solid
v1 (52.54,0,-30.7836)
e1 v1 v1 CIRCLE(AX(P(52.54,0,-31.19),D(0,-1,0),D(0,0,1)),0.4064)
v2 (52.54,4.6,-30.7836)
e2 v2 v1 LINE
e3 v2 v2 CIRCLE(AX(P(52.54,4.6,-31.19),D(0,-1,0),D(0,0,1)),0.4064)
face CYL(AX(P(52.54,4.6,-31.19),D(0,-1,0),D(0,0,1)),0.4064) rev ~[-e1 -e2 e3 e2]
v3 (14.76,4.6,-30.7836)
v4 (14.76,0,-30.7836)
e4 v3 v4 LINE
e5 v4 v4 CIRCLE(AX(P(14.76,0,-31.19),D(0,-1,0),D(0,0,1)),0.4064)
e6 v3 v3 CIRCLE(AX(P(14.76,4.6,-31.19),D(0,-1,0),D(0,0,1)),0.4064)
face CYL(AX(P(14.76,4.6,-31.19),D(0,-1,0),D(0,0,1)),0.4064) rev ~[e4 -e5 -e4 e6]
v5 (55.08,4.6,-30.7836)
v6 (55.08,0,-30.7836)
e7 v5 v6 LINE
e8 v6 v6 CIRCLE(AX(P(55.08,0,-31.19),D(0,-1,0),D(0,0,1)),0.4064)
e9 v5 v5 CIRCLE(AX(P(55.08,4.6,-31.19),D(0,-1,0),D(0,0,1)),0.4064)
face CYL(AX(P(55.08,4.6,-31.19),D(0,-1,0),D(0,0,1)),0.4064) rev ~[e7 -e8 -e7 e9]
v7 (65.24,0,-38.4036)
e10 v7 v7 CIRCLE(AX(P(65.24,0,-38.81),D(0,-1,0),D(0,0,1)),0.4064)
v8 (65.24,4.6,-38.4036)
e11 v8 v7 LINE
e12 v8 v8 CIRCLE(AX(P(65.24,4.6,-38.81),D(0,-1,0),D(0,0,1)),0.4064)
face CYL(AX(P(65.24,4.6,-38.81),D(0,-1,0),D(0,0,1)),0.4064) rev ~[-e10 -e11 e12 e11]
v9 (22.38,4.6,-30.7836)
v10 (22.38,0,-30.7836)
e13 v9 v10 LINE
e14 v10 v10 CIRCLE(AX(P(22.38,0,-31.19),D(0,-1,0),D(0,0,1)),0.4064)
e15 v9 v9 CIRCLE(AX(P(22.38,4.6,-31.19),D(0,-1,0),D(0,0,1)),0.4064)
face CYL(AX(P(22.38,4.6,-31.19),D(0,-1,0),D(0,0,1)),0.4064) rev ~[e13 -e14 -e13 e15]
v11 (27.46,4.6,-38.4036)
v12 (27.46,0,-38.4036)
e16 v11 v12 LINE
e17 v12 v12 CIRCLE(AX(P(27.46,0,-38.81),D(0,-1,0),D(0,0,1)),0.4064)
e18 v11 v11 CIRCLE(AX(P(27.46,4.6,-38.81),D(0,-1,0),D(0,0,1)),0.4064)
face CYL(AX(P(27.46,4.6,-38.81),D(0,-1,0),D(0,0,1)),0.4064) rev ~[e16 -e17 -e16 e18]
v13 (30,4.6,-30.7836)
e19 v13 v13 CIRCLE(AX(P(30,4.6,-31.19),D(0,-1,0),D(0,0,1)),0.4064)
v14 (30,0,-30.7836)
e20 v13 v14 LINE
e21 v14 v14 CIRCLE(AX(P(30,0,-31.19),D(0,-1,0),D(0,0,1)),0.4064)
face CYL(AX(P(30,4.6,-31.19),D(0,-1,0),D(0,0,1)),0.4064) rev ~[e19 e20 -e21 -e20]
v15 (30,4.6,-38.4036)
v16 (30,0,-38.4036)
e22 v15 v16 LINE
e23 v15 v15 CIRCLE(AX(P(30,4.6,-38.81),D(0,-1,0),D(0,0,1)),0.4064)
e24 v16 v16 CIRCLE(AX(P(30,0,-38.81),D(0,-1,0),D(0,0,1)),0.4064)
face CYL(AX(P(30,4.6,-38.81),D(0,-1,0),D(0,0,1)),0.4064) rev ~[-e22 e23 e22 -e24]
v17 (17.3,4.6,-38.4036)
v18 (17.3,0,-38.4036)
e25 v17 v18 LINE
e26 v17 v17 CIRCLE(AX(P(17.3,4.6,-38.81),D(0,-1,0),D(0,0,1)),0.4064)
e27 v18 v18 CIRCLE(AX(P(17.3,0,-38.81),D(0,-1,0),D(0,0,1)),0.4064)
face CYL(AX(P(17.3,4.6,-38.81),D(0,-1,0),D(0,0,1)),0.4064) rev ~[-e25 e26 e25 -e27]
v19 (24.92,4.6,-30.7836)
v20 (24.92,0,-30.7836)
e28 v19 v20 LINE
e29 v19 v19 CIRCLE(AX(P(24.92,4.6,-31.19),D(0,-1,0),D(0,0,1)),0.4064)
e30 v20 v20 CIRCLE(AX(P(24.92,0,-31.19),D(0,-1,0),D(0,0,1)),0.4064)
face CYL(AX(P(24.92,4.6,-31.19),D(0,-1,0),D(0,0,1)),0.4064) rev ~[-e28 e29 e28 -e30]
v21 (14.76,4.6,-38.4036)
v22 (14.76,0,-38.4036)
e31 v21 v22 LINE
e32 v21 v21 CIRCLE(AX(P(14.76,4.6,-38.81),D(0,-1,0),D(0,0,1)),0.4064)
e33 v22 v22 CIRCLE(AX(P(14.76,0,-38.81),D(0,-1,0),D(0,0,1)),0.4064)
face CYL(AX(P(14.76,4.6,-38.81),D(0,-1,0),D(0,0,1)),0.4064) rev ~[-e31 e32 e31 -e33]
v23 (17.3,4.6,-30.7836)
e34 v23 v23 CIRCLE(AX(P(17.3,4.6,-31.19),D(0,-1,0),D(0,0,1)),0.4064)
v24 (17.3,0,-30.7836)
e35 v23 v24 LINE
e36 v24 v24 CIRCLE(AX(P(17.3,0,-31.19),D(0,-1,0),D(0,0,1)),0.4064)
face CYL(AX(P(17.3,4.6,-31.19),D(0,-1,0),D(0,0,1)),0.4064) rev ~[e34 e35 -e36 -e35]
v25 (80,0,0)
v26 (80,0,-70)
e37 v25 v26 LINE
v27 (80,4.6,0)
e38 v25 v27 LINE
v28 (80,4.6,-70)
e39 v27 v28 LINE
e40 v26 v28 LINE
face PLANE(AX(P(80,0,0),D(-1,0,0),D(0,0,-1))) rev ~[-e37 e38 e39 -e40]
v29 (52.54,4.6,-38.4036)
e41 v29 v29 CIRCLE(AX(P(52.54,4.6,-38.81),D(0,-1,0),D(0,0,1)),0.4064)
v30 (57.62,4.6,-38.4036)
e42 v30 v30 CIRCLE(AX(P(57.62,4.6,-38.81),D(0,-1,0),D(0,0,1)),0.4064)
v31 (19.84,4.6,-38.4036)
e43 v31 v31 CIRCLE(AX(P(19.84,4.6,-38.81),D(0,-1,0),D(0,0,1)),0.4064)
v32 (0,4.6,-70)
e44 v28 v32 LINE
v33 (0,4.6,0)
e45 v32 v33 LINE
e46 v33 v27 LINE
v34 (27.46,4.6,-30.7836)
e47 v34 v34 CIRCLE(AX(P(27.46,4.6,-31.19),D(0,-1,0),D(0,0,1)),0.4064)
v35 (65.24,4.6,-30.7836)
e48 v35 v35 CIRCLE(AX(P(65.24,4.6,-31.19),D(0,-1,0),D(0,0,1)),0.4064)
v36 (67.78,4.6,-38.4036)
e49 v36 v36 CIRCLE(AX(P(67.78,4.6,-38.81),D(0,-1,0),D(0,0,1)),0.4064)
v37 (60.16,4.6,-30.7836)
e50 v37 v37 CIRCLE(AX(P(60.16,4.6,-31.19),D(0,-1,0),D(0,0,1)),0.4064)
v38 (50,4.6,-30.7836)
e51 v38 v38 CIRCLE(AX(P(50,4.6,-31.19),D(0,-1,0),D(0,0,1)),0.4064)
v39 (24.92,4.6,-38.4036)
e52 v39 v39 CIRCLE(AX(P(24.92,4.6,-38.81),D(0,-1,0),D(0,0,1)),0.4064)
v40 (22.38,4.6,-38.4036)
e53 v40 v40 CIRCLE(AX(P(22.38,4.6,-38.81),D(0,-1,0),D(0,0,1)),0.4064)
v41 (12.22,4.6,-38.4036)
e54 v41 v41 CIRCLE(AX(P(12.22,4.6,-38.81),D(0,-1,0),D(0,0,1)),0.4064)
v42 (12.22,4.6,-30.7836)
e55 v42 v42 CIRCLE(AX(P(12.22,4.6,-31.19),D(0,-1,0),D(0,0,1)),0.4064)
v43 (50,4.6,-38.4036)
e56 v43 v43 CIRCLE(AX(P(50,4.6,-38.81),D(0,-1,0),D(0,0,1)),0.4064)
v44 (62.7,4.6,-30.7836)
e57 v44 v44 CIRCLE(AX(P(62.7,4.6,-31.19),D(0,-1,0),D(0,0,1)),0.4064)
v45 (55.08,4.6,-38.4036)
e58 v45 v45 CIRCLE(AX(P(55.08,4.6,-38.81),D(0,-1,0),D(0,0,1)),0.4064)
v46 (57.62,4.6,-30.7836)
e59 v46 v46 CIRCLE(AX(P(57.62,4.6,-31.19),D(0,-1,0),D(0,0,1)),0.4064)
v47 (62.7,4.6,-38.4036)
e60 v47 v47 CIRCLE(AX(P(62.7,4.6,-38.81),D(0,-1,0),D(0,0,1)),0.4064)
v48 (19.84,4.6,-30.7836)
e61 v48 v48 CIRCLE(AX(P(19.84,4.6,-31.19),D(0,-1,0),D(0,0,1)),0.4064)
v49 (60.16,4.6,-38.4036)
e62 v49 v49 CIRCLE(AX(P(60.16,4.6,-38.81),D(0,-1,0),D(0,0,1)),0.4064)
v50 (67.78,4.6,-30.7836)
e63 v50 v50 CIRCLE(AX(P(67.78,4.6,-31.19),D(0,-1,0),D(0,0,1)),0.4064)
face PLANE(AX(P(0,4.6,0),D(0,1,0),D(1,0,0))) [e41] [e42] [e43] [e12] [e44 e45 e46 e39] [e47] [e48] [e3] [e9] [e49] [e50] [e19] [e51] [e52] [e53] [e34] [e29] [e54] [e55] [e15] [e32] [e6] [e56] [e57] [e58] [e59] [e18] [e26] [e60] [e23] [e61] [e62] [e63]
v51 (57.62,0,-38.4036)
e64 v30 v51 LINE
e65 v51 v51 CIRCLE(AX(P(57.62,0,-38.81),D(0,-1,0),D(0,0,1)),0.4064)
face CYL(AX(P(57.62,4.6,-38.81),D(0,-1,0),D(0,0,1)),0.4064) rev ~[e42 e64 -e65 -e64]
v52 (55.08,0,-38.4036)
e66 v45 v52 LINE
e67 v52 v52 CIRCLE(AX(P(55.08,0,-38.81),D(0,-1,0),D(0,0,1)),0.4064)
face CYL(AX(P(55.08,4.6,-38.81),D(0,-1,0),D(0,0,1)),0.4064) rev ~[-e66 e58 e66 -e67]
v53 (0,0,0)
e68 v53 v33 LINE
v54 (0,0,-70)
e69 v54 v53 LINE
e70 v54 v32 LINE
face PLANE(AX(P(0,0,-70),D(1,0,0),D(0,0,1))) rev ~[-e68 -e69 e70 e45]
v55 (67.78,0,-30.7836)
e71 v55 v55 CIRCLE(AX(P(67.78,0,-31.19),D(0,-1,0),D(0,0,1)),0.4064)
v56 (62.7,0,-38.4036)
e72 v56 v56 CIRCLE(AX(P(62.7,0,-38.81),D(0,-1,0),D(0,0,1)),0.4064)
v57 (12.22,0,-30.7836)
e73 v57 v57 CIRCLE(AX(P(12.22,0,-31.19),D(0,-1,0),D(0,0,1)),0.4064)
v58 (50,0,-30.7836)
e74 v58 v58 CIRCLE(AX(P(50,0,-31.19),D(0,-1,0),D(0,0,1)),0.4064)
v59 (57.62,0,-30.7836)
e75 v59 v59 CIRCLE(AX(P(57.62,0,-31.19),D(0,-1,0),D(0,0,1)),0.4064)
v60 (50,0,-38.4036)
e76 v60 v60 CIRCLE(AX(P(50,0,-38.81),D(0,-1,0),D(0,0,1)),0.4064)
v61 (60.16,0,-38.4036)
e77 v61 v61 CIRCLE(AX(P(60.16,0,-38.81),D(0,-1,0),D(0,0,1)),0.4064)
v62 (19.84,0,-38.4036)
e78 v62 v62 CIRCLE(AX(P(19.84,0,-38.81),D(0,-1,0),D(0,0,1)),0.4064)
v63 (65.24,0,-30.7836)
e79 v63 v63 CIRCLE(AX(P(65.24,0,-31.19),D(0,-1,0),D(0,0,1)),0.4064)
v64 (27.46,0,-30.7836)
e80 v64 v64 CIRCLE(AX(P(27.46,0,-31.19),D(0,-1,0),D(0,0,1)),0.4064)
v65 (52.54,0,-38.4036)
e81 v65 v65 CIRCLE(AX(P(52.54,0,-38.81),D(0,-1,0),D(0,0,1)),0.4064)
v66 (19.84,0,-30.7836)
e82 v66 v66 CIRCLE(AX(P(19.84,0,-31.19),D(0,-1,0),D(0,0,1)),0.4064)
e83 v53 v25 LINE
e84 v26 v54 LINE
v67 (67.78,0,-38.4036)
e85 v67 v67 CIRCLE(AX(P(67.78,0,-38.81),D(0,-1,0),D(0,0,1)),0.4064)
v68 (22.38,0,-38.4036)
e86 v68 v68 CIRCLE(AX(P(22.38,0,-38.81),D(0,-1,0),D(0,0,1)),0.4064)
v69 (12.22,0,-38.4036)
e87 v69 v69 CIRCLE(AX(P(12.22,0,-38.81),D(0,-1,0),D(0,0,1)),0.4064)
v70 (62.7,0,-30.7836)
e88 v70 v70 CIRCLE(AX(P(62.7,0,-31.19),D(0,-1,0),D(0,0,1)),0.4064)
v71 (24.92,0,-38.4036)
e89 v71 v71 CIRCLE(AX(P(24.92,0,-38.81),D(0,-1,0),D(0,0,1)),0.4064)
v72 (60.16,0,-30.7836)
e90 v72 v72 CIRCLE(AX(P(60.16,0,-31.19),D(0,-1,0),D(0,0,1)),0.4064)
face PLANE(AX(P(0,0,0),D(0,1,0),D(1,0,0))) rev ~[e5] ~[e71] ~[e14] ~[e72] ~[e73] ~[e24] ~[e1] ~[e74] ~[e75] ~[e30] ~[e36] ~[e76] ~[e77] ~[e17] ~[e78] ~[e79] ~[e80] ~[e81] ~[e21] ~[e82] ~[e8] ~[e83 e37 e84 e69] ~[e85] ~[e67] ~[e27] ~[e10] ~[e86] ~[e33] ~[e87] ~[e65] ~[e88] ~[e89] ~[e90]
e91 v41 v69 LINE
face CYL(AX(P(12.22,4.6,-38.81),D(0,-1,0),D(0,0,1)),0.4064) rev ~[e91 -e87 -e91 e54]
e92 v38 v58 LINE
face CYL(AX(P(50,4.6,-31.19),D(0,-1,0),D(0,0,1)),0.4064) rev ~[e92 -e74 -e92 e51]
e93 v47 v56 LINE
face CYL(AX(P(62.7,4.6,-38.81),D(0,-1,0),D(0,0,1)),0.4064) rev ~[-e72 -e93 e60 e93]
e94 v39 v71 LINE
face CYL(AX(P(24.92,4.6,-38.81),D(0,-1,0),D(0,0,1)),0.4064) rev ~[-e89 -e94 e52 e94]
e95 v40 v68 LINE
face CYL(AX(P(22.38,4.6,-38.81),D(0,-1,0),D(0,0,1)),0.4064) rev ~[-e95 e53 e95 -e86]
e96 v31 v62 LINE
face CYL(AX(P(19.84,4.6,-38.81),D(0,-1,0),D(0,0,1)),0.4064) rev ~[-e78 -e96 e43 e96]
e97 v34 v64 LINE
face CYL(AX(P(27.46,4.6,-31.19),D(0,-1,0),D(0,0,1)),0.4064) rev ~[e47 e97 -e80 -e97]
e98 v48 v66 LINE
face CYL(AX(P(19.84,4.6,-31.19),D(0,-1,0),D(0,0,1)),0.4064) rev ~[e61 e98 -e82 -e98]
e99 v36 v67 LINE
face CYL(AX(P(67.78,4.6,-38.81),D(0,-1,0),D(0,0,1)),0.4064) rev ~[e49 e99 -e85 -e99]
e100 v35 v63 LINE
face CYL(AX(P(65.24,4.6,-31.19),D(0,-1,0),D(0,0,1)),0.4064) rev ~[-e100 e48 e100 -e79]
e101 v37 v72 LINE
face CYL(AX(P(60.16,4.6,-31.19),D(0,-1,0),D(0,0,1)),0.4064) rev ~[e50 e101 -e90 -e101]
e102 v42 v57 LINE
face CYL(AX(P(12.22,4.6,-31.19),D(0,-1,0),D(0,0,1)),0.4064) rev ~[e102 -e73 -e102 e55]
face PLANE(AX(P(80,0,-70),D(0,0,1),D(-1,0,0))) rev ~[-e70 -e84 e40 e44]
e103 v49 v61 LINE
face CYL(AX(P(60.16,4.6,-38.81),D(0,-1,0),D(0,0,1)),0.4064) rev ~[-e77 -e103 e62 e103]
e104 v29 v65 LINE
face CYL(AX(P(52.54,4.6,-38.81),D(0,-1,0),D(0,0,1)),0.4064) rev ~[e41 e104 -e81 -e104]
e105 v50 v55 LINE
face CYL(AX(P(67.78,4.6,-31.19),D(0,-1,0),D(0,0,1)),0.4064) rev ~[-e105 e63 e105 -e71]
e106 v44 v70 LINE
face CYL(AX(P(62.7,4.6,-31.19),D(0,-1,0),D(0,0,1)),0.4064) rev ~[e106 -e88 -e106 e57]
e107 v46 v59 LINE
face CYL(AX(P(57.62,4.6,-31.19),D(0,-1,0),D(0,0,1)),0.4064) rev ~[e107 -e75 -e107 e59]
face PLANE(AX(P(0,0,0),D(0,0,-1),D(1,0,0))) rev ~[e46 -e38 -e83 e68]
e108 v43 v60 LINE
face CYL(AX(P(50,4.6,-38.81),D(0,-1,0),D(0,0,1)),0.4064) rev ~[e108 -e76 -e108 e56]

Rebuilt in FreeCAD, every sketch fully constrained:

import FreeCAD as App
import Part
import Sketcher

V = App.Vector
Q = App.Units.Quantity


def add_polygon(sketch, points):
    """Adds a closed chain of lines whose ends are joined by coincident constraints."""
    first, n = sketch.GeometryCount, len(points)
    for a, b in zip(points, points[1:] + points[:1]):
        sketch.addGeometry(Part.LineSegment(App.Vector(*a, 0), App.Vector(*b, 0)), False)
    for i in range(n):
        sketch.addConstraint(Sketcher.Constraint("Coincident", first + i, 2, first + (i + 1) % n, 1))

doc = App.newDocument("Part")
params = doc.addObject("Spreadsheet::Sheet", "Params")
for row, (alias, value) in enumerate([
    ("pad1_length", "0.1811024 in"),
    ("sketch2_diameter", "0.032 in"),
    ("hole_diameter", "0.032 in"),
], start=1):
    params.set(f"A{row}", alias)
    params.set(f"B{row}", "=" + value)
    params.setAlias(f"B{row}", alias)

body = doc.addObject("PartDesign::Body", "Body")

# Sketch on XZ plane
sketch1 = body.newObject("Sketcher::SketchObject", "Sketch")
sketch1.AttachmentSupport = (doc.getObject("XZ_Plane"), [""])
sketch1.MapMode = "FlatFace"
add_polygon(sketch1, [(0, -70), (0, 0), (80, 0), (80, -70)])  # lines 0-3
sketch1.addConstraint([
    Sketcher.Constraint("Vertical", 0),
    Sketcher.Constraint("Horizontal", 1),
    Sketcher.Constraint("Vertical", 2),
    Sketcher.Constraint("Horizontal", 3),
    Sketcher.Constraint("Coincident", 0, 2, -1, 1),
    Sketcher.Constraint("DistanceX", 1, 1, 1, 2, Q("3.1496 in")),
    Sketcher.Constraint("DistanceY", 0, 1, 0, 2, Q("2.7559 in")),
])
pad1 = body.newObject("PartDesign::Pad", "Pad")
pad1.Profile = sketch1
pad1.setExpression("Length", "Params.pad1_length")
pad1.Reversed = True

# Sketch on XZ plane
sketch2 = body.newObject("Sketcher::SketchObject", "Sketch001")
sketch2.AttachmentSupport = (doc.getObject("XZ_Plane"), [""])
sketch2.MapMode = "FlatFace"
sketch2.AttachmentOffset = App.Placement(V(0, 0, -0.1811024 * 25.4), App.Rotation())
sketch2.addGeometry([
    Part.Circle(V(17.3, -38.81, 0), V(0, 0, 1), 0.41),  # 0
    Part.Circle(V(17.3, -31.19, 0), V(0, 0, 1), 0.41),  # 1
    Part.Circle(V(55.08, -38.81, 0), V(0, 0, 1), 0.41),  # 2
    Part.Circle(V(14.76, -38.81, 0), V(0, 0, 1), 0.41),  # 3
    Part.Circle(V(60.16, -31.19, 0), V(0, 0, 1), 0.41),  # 4
    Part.Circle(V(50, -38.81, 0), V(0, 0, 1), 0.41),  # 5
    Part.Circle(V(57.62, -31.19, 0), V(0, 0, 1), 0.41),  # 6
    Part.Circle(V(22.38, -31.19, 0), V(0, 0, 1), 0.41),  # 7
    Part.Circle(V(67.78, -31.19, 0), V(0, 0, 1), 0.41),  # 8
    Part.Circle(V(52.54, -31.19, 0), V(0, 0, 1), 0.41),  # 9
    Part.Circle(V(65.24, -31.19, 0), V(0, 0, 1), 0.41),  # 10
    Part.Circle(V(27.46, -38.81, 0), V(0, 0, 1), 0.41),  # 11
    Part.Circle(V(57.62, -38.81, 0), V(0, 0, 1), 0.41),  # 12
    Part.Circle(V(30, -31.19, 0), V(0, 0, 1), 0.41),  # 13
    Part.Circle(V(24.92, -38.81, 0), V(0, 0, 1), 0.41),  # 14
    Part.Circle(V(14.76, -31.19, 0), V(0, 0, 1), 0.41),  # 15
    Part.Circle(V(19.84, -38.81, 0), V(0, 0, 1), 0.41),  # 16
    Part.Circle(V(12.22, -31.19, 0), V(0, 0, 1), 0.41),  # 17
    Part.Circle(V(50, -31.19, 0), V(0, 0, 1), 0.41),  # 18
    Part.Circle(V(30, -31.19, 0), V(0, 0, 1), 0.41),  # 19
    Part.Circle(V(60.16, -38.81, 0), V(0, 0, 1), 0.41),  # 20
    Part.Circle(V(62.7, -38.81, 0), V(0, 0, 1), 0.41),  # 21
    Part.Circle(V(30, -38.81, 0), V(0, 0, 1), 0.41),  # 22
    Part.Circle(V(67.78, -38.81, 0), V(0, 0, 1), 0.41),  # 23
    Part.Circle(V(27.46, -31.19, 0), V(0, 0, 1), 0.41),  # 24
    Part.Circle(V(22.38, -38.81, 0), V(0, 0, 1), 0.41),  # 25
    Part.Circle(V(62.7, -31.19, 0), V(0, 0, 1), 0.41),  # 26
    Part.Circle(V(50, -38.81, 0), V(0, 0, 1), 0.41),  # 27
    Part.Circle(V(55.08, -31.19, 0), V(0, 0, 1), 0.41),  # 28
    Part.Circle(V(65.24, -38.81, 0), V(0, 0, 1), 0.41),  # 29
    Part.Circle(V(52.54, -38.81, 0), V(0, 0, 1), 0.41),  # 30
    Part.Circle(V(50, -31.19, 0), V(0, 0, 1), 0.41),  # 31
    Part.Circle(V(19.84, -31.19, 0), V(0, 0, 1), 0.41),  # 32
    Part.Circle(V(24.92, -31.19, 0), V(0, 0, 1), 0.41),  # 33
    Part.Circle(V(30, -38.81, 0), V(0, 0, 1), 0.41),  # 34
    Part.Circle(V(12.22, -38.81, 0), V(0, 0, 1), 0.41),  # 35
], False)
sketch2.addConstraint([
    Sketcher.Constraint("Coincident", 19, 3, 13, 3),
    Sketcher.Constraint("Coincident", 27, 3, 5, 3),
    Sketcher.Constraint("Coincident", 31, 3, 18, 3),
    Sketcher.Constraint("Coincident", 34, 3, 22, 3),
    Sketcher.Constraint("Equal", 0, 1),
    Sketcher.Constraint("Equal", 1, 2),
    Sketcher.Constraint("Equal", 2, 3),
    Sketcher.Constraint("Equal", 3, 4),
    Sketcher.Constraint("Equal", 4, 5),
    Sketcher.Constraint("Equal", 5, 6),
    Sketcher.Constraint("Equal", 6, 7),
    Sketcher.Constraint("Equal", 7, 8),
    Sketcher.Constraint("Equal", 8, 9),
    Sketcher.Constraint("Equal", 9, 10),
    Sketcher.Constraint("Equal", 10, 11),
    Sketcher.Constraint("Equal", 11, 12),
    Sketcher.Constraint("Equal", 12, 13),
    Sketcher.Constraint("Equal", 13, 14),
    Sketcher.Constraint("Equal", 14, 15),
    Sketcher.Constraint("Equal", 15, 16),
    Sketcher.Constraint("Equal", 16, 17),
    Sketcher.Constraint("Equal", 17, 18),
    Sketcher.Constraint("Equal", 18, 19),
    Sketcher.Constraint("Equal", 19, 20),
    Sketcher.Constraint("Equal", 20, 21),
    Sketcher.Constraint("Equal", 21, 22),
    Sketcher.Constraint("Equal", 22, 23),
    Sketcher.Constraint("Equal", 23, 24),
    Sketcher.Constraint("Equal", 24, 25),
    Sketcher.Constraint("Equal", 25, 26),
    Sketcher.Constraint("Equal", 26, 27),
    Sketcher.Constraint("Equal", 27, 28),
    Sketcher.Constraint("Equal", 28, 29),
    Sketcher.Constraint("Equal", 29, 30),
    Sketcher.Constraint("Equal", 30, 31),
    Sketcher.Constraint("Equal", 31, 32),
    Sketcher.Constraint("Equal", 32, 33),
    Sketcher.Constraint("Equal", 33, 34),
    Sketcher.Constraint("Equal", 34, 35),
    Sketcher.Constraint("Horizontal", 0, 3, 2, 3),
    Sketcher.Constraint("Horizontal", 2, 3, 3, 3),
    Sketcher.Constraint("Horizontal", 1, 3, 4, 3),
    Sketcher.Constraint("Horizontal", 3, 3, 5, 3),
    Sketcher.Constraint("Horizontal", 4, 3, 6, 3),
    Sketcher.Constraint("Horizontal", 6, 3, 7, 3),
    Sketcher.Constraint("Horizontal", 7, 3, 8, 3),
    Sketcher.Constraint("Horizontal", 8, 3, 9, 3),
    Sketcher.Constraint("Horizontal", 9, 3, 10, 3),
    Sketcher.Constraint("Horizontal", 5, 3, 11, 3),
    Sketcher.Constraint("Horizontal", 11, 3, 12, 3),
    Sketcher.Constraint("Horizontal", 10, 3, 13, 3),
    Sketcher.Constraint("Horizontal", 12, 3, 14, 3),
    Sketcher.Constraint("Horizontal", 13, 3, 15, 3),
    Sketcher.Constraint("Horizontal", 14, 3, 16, 3),
    Sketcher.Constraint("Horizontal", 15, 3, 17, 3),
    Sketcher.Constraint("Horizontal", 17, 3, 18, 3),
    Sketcher.Constraint("Horizontal", 16, 3, 20, 3),
    Sketcher.Constraint("Horizontal", 20, 3, 21, 3),
    Sketcher.Constraint("Horizontal", 21, 3, 22, 3),
    Sketcher.Constraint("Horizontal", 22, 3, 23, 3),
    Sketcher.Constraint("Horizontal", 19, 3, 24, 3),
    Sketcher.Constraint("Horizontal", 23, 3, 25, 3),
    Sketcher.Constraint("Horizontal", 24, 3, 26, 3),
    Sketcher.Constraint("Horizontal", 26, 3, 28, 3),
    Sketcher.Constraint("Horizontal", 27, 3, 29, 3),
    Sketcher.Constraint("Horizontal", 29, 3, 30, 3),
    Sketcher.Constraint("Horizontal", 31, 3, 32, 3),
    Sketcher.Constraint("Horizontal", 32, 3, 33, 3),
    Sketcher.Constraint("Horizontal", 34, 3, 35, 3),
    Sketcher.Constraint("Vertical", 0, 3, 1, 3),
    Sketcher.Constraint("Vertical", 6, 3, 12, 3),
    Sketcher.Constraint("Vertical", 3, 3, 15, 3),
    Sketcher.Constraint("Vertical", 5, 3, 18, 3),
    Sketcher.Constraint("Vertical", 4, 3, 20, 3),
    Sketcher.Constraint("Vertical", 19, 3, 22, 3),
    Sketcher.Constraint("Vertical", 8, 3, 23, 3),
    Sketcher.Constraint("Vertical", 11, 3, 24, 3),
    Sketcher.Constraint("Vertical", 7, 3, 25, 3),
    Sketcher.Constraint("Vertical", 21, 3, 26, 3),
    Sketcher.Constraint("Vertical", 2, 3, 28, 3),
    Sketcher.Constraint("Vertical", 10, 3, 29, 3),
    Sketcher.Constraint("Vertical", 9, 3, 30, 3),
    Sketcher.Constraint("Vertical", 16, 3, 32, 3),
    Sketcher.Constraint("Vertical", 14, 3, 33, 3),
    Sketcher.Constraint("Vertical", 17, 3, 35, 3),
    Sketcher.Constraint("Diameter", 0, Q("0.032 in")),
    Sketcher.Constraint("DistanceY", 0, 3, 1, 3, Q("0.3 in")),
    Sketcher.Constraint("DistanceX", 3, 3, 0, 3, Q("0.1 in")),
    Sketcher.Constraint("DistanceX", 2, 3, 4, 3, Q("0.2 in")),
    Sketcher.Constraint("DistanceX", 5, 3, 2, 3, Q("0.2 in")),
    Sketcher.Constraint("DistanceX", 6, 3, 4, 3, Q("0.1 in")),
    Sketcher.Constraint("DistanceX", 1, 3, 7, 3, Q("0.2 in")),
    Sketcher.Constraint("DistanceX", 4, 3, 8, 3, Q("0.3 in")),
    Sketcher.Constraint("DistanceX", 9, 3, 6, 3, Q("0.2 in")),
    Sketcher.Constraint("DistanceX", 10, 3, 8, 3, Q("0.1 in")),
    Sketcher.Constraint("DistanceX", 7, 3, 11, 3, Q("0.2 in")),
    Sketcher.Constraint("DistanceX", 7, 3, 13, 3, Q("0.3 in")),
    Sketcher.Constraint("DistanceX", 14, 3, 11, 3, Q("0.1 in")),
    Sketcher.Constraint("DistanceX", 0, 3, 16, 3, Q("0.1 in")),
    Sketcher.Constraint("DistanceX", 17, 3, 15, 3, Q("0.1 in")),
    Sketcher.Constraint("DistanceX", 20, 3, 21, 3, Q("0.1 in")),
    Sketcher.Constraint("DistanceX", -1, 1, 0, 3, Q("0.6811 in")),
    Sketcher.Constraint("DistanceX", -1, 1, 2, 3, Q("2.1685 in")),
    Sketcher.Constraint("DistanceY", 0, 3, -1, 1, 38.81),
])
sketch2.setExpression("Constraints[85]", "Params.sketch2_diameter")
doc.recompute()
hole = body.newObject("PartDesign::Hole", "Hole")
hole.Profile = sketch2
hole.ThreadType = "None"
hole.setExpression("Diameter", "Params.hole_diameter")
hole.DepthType = "ThroughAll"
hole.Reversed = True

doc.recompute()
